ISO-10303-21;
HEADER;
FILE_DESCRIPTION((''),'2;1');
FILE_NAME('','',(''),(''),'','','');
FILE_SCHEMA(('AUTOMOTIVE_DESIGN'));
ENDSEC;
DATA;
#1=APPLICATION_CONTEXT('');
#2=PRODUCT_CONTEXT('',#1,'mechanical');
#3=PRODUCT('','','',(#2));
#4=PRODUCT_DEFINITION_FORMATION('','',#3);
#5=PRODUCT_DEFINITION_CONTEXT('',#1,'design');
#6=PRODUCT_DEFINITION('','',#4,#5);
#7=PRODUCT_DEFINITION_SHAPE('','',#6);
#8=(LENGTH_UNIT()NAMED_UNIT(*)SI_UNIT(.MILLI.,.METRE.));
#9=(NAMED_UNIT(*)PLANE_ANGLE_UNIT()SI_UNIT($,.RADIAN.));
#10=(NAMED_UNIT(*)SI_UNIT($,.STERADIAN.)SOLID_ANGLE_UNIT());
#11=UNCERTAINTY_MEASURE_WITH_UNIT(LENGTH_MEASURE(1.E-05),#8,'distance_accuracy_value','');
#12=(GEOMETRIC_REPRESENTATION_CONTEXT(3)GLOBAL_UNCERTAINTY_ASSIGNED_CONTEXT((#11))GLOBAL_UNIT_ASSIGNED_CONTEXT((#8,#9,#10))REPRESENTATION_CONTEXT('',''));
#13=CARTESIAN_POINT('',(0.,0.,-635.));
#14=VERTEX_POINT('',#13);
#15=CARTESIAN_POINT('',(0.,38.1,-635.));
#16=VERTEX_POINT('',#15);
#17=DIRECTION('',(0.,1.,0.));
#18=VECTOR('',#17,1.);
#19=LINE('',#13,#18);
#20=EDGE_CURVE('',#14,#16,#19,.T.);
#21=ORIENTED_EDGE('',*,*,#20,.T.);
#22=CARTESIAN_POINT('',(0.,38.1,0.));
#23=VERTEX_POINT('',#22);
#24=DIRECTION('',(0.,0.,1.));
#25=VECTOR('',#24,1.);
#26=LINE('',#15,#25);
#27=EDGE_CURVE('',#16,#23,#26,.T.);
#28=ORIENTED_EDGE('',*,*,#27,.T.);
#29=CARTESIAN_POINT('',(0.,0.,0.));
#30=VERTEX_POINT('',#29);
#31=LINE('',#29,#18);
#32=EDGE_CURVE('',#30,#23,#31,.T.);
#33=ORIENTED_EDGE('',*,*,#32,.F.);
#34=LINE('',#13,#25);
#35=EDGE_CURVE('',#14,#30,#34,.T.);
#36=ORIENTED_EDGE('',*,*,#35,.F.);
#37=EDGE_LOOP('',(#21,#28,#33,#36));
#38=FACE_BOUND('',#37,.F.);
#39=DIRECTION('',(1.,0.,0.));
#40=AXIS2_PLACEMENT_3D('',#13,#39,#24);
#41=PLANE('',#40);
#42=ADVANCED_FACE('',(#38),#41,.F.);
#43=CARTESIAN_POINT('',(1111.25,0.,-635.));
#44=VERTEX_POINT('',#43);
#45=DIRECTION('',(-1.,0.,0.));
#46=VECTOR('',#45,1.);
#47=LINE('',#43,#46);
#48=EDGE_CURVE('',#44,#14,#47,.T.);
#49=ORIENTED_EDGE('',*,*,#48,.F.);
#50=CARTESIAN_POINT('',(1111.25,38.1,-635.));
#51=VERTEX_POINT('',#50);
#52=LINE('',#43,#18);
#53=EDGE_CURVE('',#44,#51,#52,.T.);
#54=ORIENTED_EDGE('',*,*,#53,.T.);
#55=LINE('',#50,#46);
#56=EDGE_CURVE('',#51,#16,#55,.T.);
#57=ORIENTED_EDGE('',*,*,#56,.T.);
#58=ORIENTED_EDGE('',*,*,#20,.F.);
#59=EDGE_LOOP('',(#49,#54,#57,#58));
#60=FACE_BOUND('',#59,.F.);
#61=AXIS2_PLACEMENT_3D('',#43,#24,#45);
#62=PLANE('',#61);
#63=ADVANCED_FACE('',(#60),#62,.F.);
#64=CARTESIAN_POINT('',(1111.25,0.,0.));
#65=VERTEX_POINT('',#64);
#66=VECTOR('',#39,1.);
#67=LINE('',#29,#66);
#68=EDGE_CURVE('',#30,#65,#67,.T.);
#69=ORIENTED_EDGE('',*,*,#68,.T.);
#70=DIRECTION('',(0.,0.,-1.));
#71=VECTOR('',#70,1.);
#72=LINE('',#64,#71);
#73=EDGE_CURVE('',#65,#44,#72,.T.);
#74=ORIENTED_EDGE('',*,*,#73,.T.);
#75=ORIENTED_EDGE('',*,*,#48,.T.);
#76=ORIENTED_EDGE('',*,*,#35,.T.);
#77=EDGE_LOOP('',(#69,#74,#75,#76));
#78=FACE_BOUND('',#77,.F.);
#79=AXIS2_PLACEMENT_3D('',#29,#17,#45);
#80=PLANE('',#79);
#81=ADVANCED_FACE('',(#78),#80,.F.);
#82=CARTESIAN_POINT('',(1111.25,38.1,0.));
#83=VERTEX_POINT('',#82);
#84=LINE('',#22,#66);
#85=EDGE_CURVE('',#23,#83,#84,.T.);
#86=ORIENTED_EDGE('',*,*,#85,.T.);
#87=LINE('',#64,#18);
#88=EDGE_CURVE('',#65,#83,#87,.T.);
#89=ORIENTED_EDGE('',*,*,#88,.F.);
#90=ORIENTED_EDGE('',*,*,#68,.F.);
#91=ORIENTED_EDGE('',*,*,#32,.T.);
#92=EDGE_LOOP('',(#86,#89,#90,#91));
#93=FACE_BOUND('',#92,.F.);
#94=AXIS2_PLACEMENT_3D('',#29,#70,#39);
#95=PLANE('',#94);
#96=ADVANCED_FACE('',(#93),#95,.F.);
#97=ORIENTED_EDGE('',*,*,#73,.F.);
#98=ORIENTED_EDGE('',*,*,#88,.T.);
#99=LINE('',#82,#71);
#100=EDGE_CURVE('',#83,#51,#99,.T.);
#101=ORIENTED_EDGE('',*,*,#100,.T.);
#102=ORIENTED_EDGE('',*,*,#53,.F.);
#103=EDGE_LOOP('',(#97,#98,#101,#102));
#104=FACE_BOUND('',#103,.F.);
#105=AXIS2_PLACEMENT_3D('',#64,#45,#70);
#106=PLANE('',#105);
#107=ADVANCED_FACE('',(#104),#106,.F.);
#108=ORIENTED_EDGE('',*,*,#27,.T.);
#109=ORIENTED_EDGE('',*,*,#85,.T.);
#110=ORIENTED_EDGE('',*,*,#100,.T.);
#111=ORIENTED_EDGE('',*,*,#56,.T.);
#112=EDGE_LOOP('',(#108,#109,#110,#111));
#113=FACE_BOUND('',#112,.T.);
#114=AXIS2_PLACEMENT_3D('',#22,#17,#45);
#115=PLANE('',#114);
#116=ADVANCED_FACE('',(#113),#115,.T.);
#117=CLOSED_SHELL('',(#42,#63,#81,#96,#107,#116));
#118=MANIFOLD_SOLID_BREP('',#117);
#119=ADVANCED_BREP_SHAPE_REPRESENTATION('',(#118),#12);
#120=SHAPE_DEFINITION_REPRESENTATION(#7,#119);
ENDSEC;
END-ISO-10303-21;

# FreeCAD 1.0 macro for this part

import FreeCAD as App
import Part
import Sketcher

V = App.Vector
Q = App.Units.Quantity

doc = App.newDocument("Part")
params = doc.addObject("Spreadsheet::Sheet", "Params")
for row, (alias, value) in enumerate([
    ("sketch1_height", "25 in"),
    ("sketch1_width", "43.75 in"),
    ("pad1_length", "1.5 in"),
], start=1):
    params.set(f"A{row}", alias)
    params.set(f"B{row}", "=" + value)
    params.setAlias(f"B{row}", alias)

body = doc.addObject("PartDesign::Body", "Body")

sketch1 = body.newObject("Sketcher::SketchObject", "Sketch")
sketch1.AttachmentSupport = (doc.getObject("XZ_Plane"), [""])
sketch1.MapMode = "FlatFace"
sketch1.addGeometry([
    Part.LineSegment(V(0, -635, 0), V(0, 0, 0)),
    Part.LineSegment(V(0, 0, 0), V(1111, 0, 0)),
    Part.LineSegment(V(1111, 0, 0), V(1111, -635, 0)),
    Part.LineSegment(V(1111, -635, 0), V(0, -635, 0)),
], False)
sketch1.addConstraint([
    Sketcher.Constraint("Coincident", 0, 2, 1, 1),
    Sketcher.Constraint("Coincident", 1, 2, 2, 1),
    Sketcher.Constraint("Coincident", 2, 2, 3, 1),
    Sketcher.Constraint("Coincident", 3, 2, 0, 1),
    Sketcher.Constraint("Vertical", 0),
    Sketcher.Constraint("Horizontal", 1),
    Sketcher.Constraint("Vertical", 2),
    Sketcher.Constraint("Horizontal", 3),
    Sketcher.Constraint("Coincident", 0, 2, -1, 1),
    Sketcher.Constraint("DistanceY", 0, 1, 0, 2, Q("25 in")),
    Sketcher.Constraint("DistanceX", 1, 1, 1, 2, Q("43.75 in")),
])
sketch1.setExpression("Constraints[9]", "Params.sketch1_height")
sketch1.setExpression("Constraints[10]", "Params.sketch1_width")
pad1 = body.newObject("PartDesign::Pad", "Pad")
pad1.Profile = sketch1
pad1.setExpression("Length", "Params.pad1_length")
pad1.Reversed = True

doc.recompute()
